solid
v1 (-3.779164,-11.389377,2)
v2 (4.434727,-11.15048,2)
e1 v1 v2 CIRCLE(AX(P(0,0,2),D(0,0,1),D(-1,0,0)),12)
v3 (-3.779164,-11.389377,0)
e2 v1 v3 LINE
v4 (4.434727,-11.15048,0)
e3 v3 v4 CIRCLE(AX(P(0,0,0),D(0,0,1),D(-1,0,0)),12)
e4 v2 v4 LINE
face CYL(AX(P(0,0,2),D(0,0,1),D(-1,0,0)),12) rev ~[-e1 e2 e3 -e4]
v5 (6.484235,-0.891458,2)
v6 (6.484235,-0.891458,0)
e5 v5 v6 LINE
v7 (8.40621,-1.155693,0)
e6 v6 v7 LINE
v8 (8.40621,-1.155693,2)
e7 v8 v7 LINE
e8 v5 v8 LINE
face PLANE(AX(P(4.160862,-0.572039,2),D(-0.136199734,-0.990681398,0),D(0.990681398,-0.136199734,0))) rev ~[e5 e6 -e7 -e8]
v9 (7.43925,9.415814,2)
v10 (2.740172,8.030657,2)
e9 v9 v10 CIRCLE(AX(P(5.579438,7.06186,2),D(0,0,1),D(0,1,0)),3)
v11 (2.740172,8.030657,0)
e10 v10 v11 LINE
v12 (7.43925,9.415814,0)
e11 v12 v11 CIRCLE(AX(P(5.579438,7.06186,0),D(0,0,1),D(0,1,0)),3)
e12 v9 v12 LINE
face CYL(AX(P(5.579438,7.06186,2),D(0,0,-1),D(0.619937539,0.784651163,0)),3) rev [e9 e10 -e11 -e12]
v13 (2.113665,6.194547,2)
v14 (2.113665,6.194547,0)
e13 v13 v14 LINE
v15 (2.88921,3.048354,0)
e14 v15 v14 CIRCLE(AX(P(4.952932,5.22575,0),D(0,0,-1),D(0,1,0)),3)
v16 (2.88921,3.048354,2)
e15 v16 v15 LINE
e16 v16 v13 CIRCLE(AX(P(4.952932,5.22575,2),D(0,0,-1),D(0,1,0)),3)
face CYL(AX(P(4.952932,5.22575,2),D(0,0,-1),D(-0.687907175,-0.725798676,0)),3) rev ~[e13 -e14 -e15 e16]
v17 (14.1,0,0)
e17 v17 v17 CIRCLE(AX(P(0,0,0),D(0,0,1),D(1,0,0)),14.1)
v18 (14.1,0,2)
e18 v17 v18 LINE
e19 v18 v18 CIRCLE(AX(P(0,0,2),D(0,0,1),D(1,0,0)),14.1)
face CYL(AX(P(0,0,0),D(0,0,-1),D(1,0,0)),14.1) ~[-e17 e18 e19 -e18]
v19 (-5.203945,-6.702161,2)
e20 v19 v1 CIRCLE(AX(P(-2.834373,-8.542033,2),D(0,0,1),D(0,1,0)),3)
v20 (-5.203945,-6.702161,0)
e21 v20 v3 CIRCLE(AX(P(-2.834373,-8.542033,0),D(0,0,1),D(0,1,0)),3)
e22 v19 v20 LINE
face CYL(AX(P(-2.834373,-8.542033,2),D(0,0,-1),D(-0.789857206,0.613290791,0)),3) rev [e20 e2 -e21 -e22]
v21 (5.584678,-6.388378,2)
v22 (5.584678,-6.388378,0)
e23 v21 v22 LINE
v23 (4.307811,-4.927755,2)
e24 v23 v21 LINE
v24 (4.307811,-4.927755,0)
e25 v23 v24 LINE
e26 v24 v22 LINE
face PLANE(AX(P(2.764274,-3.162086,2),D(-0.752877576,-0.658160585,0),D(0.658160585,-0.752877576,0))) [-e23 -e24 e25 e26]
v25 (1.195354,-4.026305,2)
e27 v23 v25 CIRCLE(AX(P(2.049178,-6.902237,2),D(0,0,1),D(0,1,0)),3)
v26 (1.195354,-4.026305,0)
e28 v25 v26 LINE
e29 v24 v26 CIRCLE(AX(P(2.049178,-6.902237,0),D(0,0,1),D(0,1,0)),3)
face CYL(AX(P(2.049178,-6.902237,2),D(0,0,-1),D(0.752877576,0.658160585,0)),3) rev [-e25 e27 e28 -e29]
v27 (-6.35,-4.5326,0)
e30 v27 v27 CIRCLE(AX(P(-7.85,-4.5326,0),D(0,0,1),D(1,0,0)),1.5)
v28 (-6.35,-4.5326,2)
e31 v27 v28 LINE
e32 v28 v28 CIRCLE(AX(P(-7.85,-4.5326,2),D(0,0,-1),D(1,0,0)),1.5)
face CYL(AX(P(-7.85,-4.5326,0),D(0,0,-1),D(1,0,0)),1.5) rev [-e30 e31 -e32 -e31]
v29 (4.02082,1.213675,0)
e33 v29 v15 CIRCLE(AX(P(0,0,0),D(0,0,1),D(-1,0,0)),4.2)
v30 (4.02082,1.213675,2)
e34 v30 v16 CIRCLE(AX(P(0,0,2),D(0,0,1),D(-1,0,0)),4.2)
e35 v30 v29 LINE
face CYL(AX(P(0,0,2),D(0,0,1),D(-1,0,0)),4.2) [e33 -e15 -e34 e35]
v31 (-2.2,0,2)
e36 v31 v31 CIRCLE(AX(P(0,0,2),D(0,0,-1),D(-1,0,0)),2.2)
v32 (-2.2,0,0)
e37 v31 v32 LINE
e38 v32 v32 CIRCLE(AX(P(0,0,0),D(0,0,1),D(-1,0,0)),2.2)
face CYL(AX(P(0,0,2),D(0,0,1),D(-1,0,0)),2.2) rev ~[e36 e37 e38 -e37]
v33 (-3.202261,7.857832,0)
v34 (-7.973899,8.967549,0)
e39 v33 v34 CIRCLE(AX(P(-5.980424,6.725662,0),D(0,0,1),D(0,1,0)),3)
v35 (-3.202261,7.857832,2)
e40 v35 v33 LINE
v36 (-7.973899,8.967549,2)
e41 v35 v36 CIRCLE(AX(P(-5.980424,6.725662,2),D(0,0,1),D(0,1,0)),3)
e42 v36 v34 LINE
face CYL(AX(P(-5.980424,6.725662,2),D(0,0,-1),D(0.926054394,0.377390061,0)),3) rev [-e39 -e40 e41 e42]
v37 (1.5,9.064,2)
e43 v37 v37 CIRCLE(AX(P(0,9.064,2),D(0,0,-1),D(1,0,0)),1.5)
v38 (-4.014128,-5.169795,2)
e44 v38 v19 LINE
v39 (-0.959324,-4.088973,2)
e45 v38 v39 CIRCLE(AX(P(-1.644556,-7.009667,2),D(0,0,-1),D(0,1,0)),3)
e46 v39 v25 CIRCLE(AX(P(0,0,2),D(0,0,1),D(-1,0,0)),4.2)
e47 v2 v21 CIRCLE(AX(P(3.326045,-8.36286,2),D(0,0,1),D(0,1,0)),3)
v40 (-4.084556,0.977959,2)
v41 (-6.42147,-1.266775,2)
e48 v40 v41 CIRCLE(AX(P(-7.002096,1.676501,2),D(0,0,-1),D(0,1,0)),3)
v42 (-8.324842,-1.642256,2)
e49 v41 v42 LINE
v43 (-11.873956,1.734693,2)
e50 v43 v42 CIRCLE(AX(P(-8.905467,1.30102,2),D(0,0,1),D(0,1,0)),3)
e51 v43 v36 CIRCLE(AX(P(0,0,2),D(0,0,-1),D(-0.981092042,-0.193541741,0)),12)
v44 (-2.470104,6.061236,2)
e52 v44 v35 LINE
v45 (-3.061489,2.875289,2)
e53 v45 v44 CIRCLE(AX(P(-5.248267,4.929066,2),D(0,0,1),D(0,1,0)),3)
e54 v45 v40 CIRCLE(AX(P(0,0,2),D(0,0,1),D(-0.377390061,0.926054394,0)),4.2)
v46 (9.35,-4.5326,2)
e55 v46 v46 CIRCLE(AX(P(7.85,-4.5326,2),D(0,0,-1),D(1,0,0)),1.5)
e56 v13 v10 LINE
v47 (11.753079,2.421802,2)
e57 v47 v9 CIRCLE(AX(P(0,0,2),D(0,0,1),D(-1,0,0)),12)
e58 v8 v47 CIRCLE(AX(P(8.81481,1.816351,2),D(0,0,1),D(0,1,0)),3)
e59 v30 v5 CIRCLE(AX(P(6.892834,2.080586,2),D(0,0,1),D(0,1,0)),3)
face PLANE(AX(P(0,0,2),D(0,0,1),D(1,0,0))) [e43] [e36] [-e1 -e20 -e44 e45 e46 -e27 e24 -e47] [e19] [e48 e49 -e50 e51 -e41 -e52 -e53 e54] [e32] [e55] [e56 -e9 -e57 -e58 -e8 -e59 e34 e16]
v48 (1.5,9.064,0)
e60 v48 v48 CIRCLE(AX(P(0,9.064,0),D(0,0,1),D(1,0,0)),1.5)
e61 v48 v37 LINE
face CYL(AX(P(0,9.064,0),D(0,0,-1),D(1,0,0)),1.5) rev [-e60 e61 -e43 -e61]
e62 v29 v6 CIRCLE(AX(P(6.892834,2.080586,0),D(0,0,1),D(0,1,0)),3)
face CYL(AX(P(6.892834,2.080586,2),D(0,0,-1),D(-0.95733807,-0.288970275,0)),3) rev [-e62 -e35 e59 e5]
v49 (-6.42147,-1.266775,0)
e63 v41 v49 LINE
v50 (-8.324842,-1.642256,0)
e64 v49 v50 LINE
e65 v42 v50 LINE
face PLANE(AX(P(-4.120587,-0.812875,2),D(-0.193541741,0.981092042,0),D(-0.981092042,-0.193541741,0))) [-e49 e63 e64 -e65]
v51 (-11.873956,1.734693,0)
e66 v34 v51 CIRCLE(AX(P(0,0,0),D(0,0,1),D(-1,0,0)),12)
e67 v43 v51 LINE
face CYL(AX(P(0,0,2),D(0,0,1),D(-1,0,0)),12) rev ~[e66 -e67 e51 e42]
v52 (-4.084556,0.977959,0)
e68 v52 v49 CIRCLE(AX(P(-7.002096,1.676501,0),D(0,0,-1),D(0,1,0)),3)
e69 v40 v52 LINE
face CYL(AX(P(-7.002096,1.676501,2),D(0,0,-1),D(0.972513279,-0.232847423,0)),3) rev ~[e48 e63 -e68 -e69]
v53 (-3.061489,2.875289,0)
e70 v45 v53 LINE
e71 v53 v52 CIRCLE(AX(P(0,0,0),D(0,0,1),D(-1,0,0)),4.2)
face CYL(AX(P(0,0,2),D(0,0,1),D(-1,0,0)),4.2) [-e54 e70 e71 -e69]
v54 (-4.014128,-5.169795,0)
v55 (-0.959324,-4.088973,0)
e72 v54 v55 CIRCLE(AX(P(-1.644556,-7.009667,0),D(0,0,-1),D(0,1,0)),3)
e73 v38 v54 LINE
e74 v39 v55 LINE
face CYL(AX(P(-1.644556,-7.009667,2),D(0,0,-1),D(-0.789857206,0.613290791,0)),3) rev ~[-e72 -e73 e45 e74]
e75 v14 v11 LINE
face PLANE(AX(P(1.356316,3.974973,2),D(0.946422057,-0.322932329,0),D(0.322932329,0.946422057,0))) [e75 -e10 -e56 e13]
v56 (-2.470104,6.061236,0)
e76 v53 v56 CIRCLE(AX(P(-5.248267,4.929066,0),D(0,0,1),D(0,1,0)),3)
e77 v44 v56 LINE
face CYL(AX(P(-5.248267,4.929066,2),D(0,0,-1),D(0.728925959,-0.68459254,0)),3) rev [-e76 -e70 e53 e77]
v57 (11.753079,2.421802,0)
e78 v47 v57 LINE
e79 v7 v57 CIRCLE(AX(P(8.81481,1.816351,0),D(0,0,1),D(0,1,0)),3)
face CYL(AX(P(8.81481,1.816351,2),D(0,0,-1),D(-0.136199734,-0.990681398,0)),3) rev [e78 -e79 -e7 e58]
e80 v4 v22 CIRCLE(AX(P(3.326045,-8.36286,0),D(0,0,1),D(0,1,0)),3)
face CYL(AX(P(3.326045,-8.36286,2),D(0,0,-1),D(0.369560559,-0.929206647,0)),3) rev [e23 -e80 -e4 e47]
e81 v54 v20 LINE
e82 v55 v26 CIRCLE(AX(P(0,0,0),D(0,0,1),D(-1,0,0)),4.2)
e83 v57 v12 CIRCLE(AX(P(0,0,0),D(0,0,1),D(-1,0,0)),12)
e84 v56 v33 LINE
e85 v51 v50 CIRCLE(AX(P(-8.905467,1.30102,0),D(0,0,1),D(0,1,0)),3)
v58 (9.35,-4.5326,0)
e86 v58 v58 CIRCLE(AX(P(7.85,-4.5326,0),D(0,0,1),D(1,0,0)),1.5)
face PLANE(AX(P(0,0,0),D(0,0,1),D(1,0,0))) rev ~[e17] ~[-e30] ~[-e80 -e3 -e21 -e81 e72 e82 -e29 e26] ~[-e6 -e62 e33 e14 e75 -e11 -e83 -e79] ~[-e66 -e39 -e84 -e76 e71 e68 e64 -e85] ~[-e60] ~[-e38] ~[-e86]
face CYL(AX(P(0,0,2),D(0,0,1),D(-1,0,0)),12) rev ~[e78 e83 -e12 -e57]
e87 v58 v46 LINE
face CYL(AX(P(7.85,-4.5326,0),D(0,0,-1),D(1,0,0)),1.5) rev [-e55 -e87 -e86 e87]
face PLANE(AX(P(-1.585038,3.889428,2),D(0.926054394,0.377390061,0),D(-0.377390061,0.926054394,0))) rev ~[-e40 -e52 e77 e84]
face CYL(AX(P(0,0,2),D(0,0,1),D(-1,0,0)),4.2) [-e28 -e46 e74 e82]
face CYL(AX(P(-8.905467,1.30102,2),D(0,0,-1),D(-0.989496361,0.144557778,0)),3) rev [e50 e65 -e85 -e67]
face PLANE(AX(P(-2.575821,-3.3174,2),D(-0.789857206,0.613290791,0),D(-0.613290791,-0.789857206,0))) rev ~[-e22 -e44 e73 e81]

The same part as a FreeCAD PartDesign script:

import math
import FreeCAD as App
import Part
import Sketcher
Q = App.Units.Quantity


def edges_at(feature, points):
    """Names of the edges that pass closest to the given points."""
    edges = feature.Shape.Edges
    near = lambda p: min(range(len(edges)), key=lambda i: edges[i].distToShape(Part.Vertex(*p))[0])
    return sorted({f"Edge{near(p) + 1}" for p in points})

doc = App.newDocument("Part")
body = doc.addObject("PartDesign::Body", "Body")

sketch1 = body.newObject("Sketcher::SketchObject", "Sketch")
sketch1.AttachmentSupport = (doc.getObject("XY_Plane"), [""])
sketch1.MapMode = "FlatFace"
sketch1.addGeometry([
    Part.Circle(App.Vector(0, 0, 0), App.Vector(0, 0, 1), 14.1),
    Part.Circle(App.Vector(-7.8, -4.5, 0), App.Vector(0, 0, 1), 1.5),
    Part.Circle(App.Vector(7.8, -4.5, 0), App.Vector(0, 0, 1), 1.5),
    Part.Circle(App.Vector(0, 9.1, 0), App.Vector(0, 0, 1), 1.5),
], False)
sketch1.addConstraint([
    Sketcher.Constraint("Coincident", 0, 3, -1, 1),
    Sketcher.Constraint("Equal", 1, 2),
    Sketcher.Constraint("Equal", 2, 3),
    Sketcher.Constraint("Symmetric", 1, 3, 2, 3, -2),
    Sketcher.Constraint("PointOnObject", 3, 3, -2),
    Sketcher.Constraint("Diameter", 1, 3.0),
    Sketcher.Constraint("Diameter", 0, 28.2),
    Sketcher.Constraint("DistanceX", 1, 3, 2, 3, 15.7),
    Sketcher.Constraint("DistanceY", -1, 1, 3, 3, 9.064),
    Sketcher.Constraint("DistanceY", 1, 3, -1, 1, 4.5326),
])
pad1 = body.newObject("PartDesign::Pad", "Pad")
pad1.Profile = sketch1
pad1.Length = 2

sketch2 = body.newObject("Sketcher::SketchObject", "Sketch001")
sketch2.AttachmentSupport = (doc.getObject("XY_Plane"), [""])
sketch2.MapMode = "FlatFace"
sketch2.AttachmentOffset = App.Placement(App.Vector(0, 0, 2), App.Rotation())
sketch2.addGeometry([
    Part.Circle(App.Vector(0, 0, 0), App.Vector(0, 0, 1), 2.2),
    Part.LineSegment(App.Vector(-11.8, -2.3, 0), App.Vector(-4.1, -0.8, 0)),
    Part.ArcOfCircle(Part.Circle(App.Vector(0, 0, 0), App.Vector(0, 0, 1), 4.2), math.radians(112), math.radians(191)),
    Part.LineSegment(App.Vector(-1.6, 3.9, 0), App.Vector(-4.5, 11.1, 0)),
    Part.ArcOfCircle(Part.Circle(App.Vector(0, 0, 0), App.Vector(0, 0, 1), 12), math.radians(112), math.radians(191)),
    Part.ArcOfCircle(Part.Circle(App.Vector(0, 0, 0), App.Vector(0, 0, 1), 4.2), math.radians(-128), math.radians(-49)),
    Part.LineSegment(App.Vector(-2.6, -3.3, 0), App.Vector(-7.4, -9.5, 0)),
    Part.ArcOfCircle(Part.Circle(App.Vector(0, 0, 0), App.Vector(0, 0, 1), 12), math.radians(-128), math.radians(-49)),
    Part.LineSegment(App.Vector(7.9, -9, 0), App.Vector(2.8, -3.2, 0)),
    Part.LineSegment(App.Vector(3.9, 11.4, 0), App.Vector(1.4, 4, 0)),
    Part.ArcOfCircle(Part.Circle(App.Vector(0, 0, 0), App.Vector(0, 0, 1), 4.2), math.radians(-8), math.radians(71)),
    Part.LineSegment(App.Vector(4.2, -0.6, 0), App.Vector(11.9, -1.6, 0)),
    Part.ArcOfCircle(Part.Circle(App.Vector(0, 0, 0), App.Vector(0, 0, 1), 12), math.radians(-8), math.radians(71)),
], False)
sketch2.addConstraint([
    Sketcher.Constraint("Coincident", 1, 2, 2, 2),
    Sketcher.Constraint("Coincident", 2, 1, 3, 1),
    Sketcher.Constraint("Coincident", 3, 2, 4, 1),
    Sketcher.Constraint("Coincident", 4, 2, 1, 1),
    Sketcher.Constraint("Coincident", 5, 1, 6, 1),
    Sketcher.Constraint("Coincident", 6, 2, 7, 1),
    Sketcher.Constraint("Coincident", 7, 2, 8, 1),
    Sketcher.Constraint("Coincident", 8, 2, 5, 2),
    Sketcher.Constraint("Coincident", 9, 2, 10, 2),
    Sketcher.Constraint("Coincident", 10, 1, 11, 1),
    Sketcher.Constraint("Coincident", 11, 2, 12, 1),
    Sketcher.Constraint("Coincident", 12, 2, 9, 1),
    Sketcher.Constraint("Coincident", 0, 3, -1, 1),
    Sketcher.Constraint("Coincident", 2, 3, -1, 1),
    Sketcher.Constraint("Coincident", 4, 3, -1, 1),
    Sketcher.Constraint("Coincident", 5, 3, -1, 1),
    Sketcher.Constraint("Coincident", 7, 3, -1, 1),
    Sketcher.Constraint("Coincident", 10, 3, -1, 1),
    Sketcher.Constraint("Coincident", 12, 3, -1, 1),
    Sketcher.Constraint("Equal", 2, 5),
    Sketcher.Constraint("Equal", 4, 7),
    Sketcher.Constraint("Equal", 5, 10),
    Sketcher.Constraint("Equal", 7, 12),
    Sketcher.Constraint("Radius", 4, 12.0),
    Sketcher.Constraint("Diameter", 0, 4.4),
    Sketcher.Constraint("Radius", 2, 4.2),
    Sketcher.Constraint("Angle", 1, Q("11.1595 deg")),
    Sketcher.Constraint("Angle", 8, Q("131.1597 deg")),
    Sketcher.Constraint("Angle", 9, Q("-108.8404 deg")),
    Sketcher.Constraint("DistanceY", 8, 2, 10, 1, 2.59),
    Sketcher.Constraint("DistanceX", 2, 1, -1, 1, 1.585),
    Sketcher.Constraint("DistanceX", 4, 2, -1, 1, 11.773),
    Sketcher.Constraint("DistanceX", -1, 1, 7, 2, 7.898),
    Sketcher.Constraint("DistanceY", -1, 1, 9, 2, 3.975),
    Sketcher.Constraint("DistanceX", 3, 2, 1, 2, 0.408),
    Sketcher.Constraint("DistanceY", 6, 2, 5, 1, 6.161),
    Sketcher.Constraint("DistanceX", 6, 2, 1, 2, 3.239),
    Sketcher.Constraint("DistanceX", 8, 2, 11, 2, 9.124),
])
pocket1 = body.newObject("PartDesign::Pocket", "Pocket")
pocket1.Profile = sketch2
pocket1.Length = 8
doc.recompute()

fillet = body.newObject("PartDesign::Fillet", "Fillet")
fillet.Base = (pocket1, edges_at(pocket1, [
    (-1.585, 3.889, 1),
    (-4.121, -0.813, 1),
    (-2.576, -3.317, 1),
    (2.764, -3.162, 1),
    (4.161, -0.572, 1),
    (1.356, 3.975, 1),
    (3.875, 11.357, 1),
    (11.888, -1.634, 1),
    (-4.529, 11.113, 1),
    (-11.773, -2.322, 1),
    (-7.359, -9.478, 1),
    (7.898, -9.034, 1),
]))
fillet.Radius = 3

doc.recompute()
